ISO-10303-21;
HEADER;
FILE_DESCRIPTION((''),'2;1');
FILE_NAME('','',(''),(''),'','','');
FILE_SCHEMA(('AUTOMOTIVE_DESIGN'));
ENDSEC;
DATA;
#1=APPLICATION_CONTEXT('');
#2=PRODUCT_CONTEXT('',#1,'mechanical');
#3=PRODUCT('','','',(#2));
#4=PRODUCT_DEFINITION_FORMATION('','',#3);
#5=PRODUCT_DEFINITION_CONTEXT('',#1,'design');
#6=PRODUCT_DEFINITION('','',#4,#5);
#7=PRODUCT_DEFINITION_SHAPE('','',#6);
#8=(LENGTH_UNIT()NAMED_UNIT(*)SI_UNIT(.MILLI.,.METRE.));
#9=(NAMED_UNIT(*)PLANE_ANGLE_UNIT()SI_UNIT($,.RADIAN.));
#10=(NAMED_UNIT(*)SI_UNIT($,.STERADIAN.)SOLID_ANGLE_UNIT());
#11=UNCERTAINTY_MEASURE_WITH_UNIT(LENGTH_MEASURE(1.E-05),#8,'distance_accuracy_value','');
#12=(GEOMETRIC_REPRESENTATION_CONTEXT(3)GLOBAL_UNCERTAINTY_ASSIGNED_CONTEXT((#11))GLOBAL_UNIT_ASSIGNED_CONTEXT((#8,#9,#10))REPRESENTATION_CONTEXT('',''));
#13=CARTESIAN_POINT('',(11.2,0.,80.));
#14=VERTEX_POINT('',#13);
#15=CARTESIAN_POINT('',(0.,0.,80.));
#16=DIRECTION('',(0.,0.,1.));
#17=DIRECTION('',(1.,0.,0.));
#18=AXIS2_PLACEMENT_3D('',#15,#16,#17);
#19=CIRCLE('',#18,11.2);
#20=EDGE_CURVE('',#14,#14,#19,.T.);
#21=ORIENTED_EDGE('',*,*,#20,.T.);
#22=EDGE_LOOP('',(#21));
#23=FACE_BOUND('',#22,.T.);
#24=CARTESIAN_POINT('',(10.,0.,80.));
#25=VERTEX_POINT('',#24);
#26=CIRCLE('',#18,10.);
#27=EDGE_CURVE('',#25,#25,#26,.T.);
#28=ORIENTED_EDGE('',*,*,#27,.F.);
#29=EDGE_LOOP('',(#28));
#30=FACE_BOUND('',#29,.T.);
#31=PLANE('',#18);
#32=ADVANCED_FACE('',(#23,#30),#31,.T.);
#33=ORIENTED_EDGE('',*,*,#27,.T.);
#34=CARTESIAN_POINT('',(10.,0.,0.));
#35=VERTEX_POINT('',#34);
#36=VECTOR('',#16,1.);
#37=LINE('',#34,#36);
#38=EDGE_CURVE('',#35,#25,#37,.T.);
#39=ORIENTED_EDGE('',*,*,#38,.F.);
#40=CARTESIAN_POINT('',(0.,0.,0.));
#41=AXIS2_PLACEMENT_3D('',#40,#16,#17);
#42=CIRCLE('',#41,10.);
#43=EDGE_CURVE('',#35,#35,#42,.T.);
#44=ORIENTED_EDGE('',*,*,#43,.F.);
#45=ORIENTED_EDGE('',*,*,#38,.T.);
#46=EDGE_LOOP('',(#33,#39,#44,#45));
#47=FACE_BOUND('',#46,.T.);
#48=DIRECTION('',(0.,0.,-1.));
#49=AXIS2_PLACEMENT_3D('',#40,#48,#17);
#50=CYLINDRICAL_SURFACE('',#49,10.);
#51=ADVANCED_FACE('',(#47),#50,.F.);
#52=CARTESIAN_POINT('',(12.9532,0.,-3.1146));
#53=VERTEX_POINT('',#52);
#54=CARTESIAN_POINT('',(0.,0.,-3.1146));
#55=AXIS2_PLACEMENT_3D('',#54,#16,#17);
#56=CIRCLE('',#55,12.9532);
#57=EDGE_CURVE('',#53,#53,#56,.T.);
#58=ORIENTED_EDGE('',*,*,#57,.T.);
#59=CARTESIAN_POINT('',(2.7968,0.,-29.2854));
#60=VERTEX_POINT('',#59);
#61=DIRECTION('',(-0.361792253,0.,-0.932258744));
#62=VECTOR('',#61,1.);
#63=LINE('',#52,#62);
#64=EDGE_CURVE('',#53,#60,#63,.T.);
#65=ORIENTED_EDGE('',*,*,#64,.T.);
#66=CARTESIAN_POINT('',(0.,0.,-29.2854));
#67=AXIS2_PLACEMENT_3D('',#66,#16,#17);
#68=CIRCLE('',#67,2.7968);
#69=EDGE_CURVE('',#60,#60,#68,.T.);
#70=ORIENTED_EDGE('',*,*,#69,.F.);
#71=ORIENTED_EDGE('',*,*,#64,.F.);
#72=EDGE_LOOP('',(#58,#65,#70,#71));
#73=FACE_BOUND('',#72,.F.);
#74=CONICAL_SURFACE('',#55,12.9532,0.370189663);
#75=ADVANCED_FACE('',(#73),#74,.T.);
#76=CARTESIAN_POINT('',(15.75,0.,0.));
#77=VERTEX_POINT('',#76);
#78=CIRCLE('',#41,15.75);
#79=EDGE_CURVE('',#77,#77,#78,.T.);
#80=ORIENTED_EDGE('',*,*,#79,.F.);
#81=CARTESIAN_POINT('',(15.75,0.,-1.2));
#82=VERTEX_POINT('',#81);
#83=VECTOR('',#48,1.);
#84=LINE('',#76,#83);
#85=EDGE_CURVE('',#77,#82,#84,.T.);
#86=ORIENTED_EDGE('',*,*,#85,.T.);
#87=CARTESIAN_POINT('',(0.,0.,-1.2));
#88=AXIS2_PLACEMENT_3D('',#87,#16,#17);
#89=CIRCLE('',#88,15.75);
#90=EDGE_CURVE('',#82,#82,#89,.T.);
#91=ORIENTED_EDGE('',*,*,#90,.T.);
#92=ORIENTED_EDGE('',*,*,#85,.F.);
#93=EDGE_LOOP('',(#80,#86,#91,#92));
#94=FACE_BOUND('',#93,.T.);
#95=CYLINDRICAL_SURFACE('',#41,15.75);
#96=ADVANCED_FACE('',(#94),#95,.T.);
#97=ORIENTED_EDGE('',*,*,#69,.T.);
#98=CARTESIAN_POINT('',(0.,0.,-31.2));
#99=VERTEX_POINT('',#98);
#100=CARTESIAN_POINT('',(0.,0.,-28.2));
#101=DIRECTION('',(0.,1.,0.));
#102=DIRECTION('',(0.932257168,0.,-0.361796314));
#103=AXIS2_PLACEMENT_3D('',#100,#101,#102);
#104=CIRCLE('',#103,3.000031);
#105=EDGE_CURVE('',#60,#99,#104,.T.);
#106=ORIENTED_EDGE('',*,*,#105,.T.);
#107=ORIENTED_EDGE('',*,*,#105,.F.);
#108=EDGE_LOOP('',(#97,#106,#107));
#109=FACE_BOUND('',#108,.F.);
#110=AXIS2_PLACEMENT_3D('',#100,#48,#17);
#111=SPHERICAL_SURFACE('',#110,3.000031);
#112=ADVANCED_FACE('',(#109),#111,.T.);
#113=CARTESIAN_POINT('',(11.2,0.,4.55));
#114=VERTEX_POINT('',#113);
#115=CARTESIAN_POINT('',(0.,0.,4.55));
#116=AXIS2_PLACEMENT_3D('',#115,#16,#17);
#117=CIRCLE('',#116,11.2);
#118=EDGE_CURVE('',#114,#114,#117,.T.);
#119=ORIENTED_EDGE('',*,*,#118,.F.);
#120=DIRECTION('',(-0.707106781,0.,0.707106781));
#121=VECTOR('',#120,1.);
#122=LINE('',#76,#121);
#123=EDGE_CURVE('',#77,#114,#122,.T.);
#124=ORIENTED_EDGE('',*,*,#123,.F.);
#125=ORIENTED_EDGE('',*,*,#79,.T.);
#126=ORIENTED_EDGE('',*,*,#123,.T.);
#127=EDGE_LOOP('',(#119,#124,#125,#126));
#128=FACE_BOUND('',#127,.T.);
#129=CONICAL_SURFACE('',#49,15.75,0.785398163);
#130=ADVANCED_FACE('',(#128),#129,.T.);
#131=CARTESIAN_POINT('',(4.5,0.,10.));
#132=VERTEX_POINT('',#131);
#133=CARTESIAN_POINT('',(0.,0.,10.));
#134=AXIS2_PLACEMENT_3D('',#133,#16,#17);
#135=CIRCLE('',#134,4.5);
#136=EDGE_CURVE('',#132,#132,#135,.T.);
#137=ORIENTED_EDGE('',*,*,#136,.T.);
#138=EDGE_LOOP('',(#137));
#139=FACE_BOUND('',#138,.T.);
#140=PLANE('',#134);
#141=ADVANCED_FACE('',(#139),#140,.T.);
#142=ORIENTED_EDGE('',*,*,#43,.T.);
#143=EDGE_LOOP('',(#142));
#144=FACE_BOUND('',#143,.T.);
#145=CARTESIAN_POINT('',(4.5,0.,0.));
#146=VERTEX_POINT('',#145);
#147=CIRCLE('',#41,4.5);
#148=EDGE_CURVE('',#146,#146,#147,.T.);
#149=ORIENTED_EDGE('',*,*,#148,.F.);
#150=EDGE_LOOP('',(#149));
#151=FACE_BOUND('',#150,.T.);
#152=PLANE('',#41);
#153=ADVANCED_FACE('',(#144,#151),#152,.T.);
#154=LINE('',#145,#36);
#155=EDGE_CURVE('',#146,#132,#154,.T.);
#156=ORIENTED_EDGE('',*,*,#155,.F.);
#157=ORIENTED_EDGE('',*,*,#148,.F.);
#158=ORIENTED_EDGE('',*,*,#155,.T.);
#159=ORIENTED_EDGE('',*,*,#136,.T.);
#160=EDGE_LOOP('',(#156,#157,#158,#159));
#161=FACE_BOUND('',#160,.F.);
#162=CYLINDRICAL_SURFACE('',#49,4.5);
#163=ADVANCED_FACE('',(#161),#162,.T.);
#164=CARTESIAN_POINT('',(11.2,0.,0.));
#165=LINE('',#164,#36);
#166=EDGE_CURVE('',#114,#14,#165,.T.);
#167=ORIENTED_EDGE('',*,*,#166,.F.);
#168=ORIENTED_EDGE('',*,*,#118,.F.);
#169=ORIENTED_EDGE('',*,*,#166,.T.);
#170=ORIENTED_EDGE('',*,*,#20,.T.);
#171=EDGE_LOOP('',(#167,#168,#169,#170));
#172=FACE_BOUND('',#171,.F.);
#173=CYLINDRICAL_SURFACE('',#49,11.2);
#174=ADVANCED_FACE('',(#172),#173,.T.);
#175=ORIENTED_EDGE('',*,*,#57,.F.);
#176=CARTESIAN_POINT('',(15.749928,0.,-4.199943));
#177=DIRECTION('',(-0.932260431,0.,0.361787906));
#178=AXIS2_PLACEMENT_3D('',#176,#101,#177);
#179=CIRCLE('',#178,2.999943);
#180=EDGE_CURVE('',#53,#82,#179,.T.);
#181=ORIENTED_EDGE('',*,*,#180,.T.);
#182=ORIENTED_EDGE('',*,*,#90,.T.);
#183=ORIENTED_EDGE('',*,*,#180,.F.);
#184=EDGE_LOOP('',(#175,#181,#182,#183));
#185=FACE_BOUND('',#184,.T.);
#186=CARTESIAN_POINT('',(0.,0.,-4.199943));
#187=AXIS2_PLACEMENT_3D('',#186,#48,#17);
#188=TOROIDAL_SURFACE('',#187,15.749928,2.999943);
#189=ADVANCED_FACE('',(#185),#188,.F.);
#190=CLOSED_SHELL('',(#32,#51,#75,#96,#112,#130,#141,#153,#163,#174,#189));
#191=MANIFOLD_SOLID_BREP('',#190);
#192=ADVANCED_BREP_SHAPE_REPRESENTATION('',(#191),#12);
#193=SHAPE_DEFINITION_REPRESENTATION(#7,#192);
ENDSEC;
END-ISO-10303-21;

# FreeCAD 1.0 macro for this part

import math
import FreeCAD as App
import Part
import Sketcher
Q = App.Units.Quantity


def add_polygon(sketch, points):
    """Adds a closed chain of lines whose ends are joined by coincident constraints."""
    first, n = sketch.GeometryCount, len(points)
    for a, b in zip(points, points[1:] + points[:1]):
        sketch.addGeometry(Part.LineSegment(App.Vector(*a, 0), App.Vector(*b, 0)), False)
    for i in range(n):
        sketch.addConstraint(Sketcher.Constraint("Coincident", first + i, 2, first + (i + 1) % n, 1))

doc = App.newDocument("Part")
params = doc.addObject("Spreadsheet::Sheet", "Params")
for row, (alias, value) in enumerate([
    ("sketch1_diameter", "31.5 mm"),
    ("pad1_length", "31.2 mm"),
    ("sketch2_diameter", "20 mm"),
    ("sketch2_diameter2", "22.4 mm"),
    ("pad2_length", "80 mm"),
    ("sketch3_radius", "3 mm"),
    ("sketch3_height", "30 mm"),
    ("sketch3_width", "15.75 mm"),
    ("groove_angle", "360 deg"),
    ("sketch4_radius", "3 mm"),
    ("sketch4_height", "30 mm"),
    ("sketch4_width", "4.55 mm"),
    ("sketch4_width2", "15.75 mm"),
    ("revolution_angle", "360 deg"),
    ("sketch5_diameter", "9 mm"),
    ("pad3_length", "10 mm"),
], start=1):
    params.set(f"A{row}", alias)
    params.set(f"B{row}", "=" + value)
    params.setAlias(f"B{row}", alias)

body = doc.addObject("PartDesign::Body", "Body")

sketch1 = body.newObject("Sketcher::SketchObject", "Sketch")
sketch1.AttachmentSupport = (doc.getObject("XY_Plane"), [""])
sketch1.MapMode = "FlatFace"
sketch1.addGeometry(Part.Circle(App.Vector(0, 0, 0), App.Vector(0, 0, 1), 16), False)
sketch1.addConstraint([
    Sketcher.Constraint("Coincident", 0, 3, -1, 1),
    Sketcher.Constraint("Diameter", 0, Q("31.5 mm")),
])
sketch1.setExpression("Constraints[1]", "Params.sketch1_diameter")
pad1 = body.newObject("PartDesign::Pad", "Pad")
pad1.Profile = sketch1
pad1.setExpression("Length", "Params.pad1_length")
pad1.Reversed = True

sketch2 = body.newObject("Sketcher::SketchObject", "Sketch001")
sketch2.AttachmentSupport = (doc.getObject("XY_Plane"), [""])
sketch2.MapMode = "FlatFace"
sketch2.addGeometry([
    Part.Circle(App.Vector(0, 0, 0), App.Vector(0, 0, 1), 11),
    Part.Circle(App.Vector(0, 0, 0), App.Vector(0, 0, 1), 10),
], False)
sketch2.addConstraint([
    Sketcher.Constraint("Coincident", 0, 3, -1, 1),
    Sketcher.Constraint("Coincident", 1, 3, -1, 1),
    Sketcher.Constraint("Diameter", 1, Q("20 mm")),
    Sketcher.Constraint("Diameter", 0, Q("22.4 mm")),
])
sketch2.setExpression("Constraints[2]", "Params.sketch2_diameter")
sketch2.setExpression("Constraints[3]", "Params.sketch2_diameter2")
pad2 = body.newObject("PartDesign::Pad", "Pad001")
pad2.Profile = sketch2
pad2.setExpression("Length", "Params.pad2_length")

sketch3 = body.newObject("Sketcher::SketchObject", "Sketch002")
sketch3.AttachmentSupport = (doc.getObject("XZ_Plane"), [""])
sketch3.MapMode = "FlatFace"
sketch3.addGeometry([
    Part.LineSegment(App.Vector(15.8, -1.2, 0), App.Vector(15.8, -31.2, 0)),
    Part.LineSegment(App.Vector(15.8, -31.2, 0), App.Vector(0, -31.2, 0)),
    Part.ArcOfCircle(Part.Circle(App.Vector(0, -28.2, 0), App.Vector(0, 0, 1), 3), math.radians(-90), math.radians(-21)),
    Part.LineSegment(App.Vector(2.8, -29.3, 0), App.Vector(13, -3.1, 0)),
    Part.ArcOfCircle(Part.Circle(App.Vector(15.8, -4.2, 0), App.Vector(0, 0, 1), 3), math.radians(90), math.radians(159)),
], False)
sketch3.addConstraint([
    Sketcher.Constraint("Coincident", 0, 2, 1, 1),
    Sketcher.Constraint("Tangent", 1, 2, 2, 1),
    Sketcher.Constraint("Tangent", 2, 2, 3, 1),
    Sketcher.Constraint("Tangent", 3, 2, 4, 2),
    Sketcher.Constraint("Coincident", 4, 1, 0, 1),
    Sketcher.Constraint("Vertical", 0),
    Sketcher.Constraint("Horizontal", 1),
    Sketcher.Constraint("Equal", 2, 4),
    Sketcher.Constraint("PointOnObject", 2, 3, -2),
    Sketcher.Constraint("Vertical", 4, 3, 0, 2),
    Sketcher.Constraint("Radius", 2, Q("3 mm")),
    Sketcher.Constraint("DistanceY", 4, 1, -1, 1, Q("1.2 mm")),
    Sketcher.Constraint("DistanceY", 0, 2, 0, 1, Q("30 mm")),
    Sketcher.Constraint("DistanceX", 1, 2, 1, 1, Q("15.75 mm")),
])
sketch3.setExpression("Constraints[10]", "Params.sketch3_radius")
sketch3.setExpression("Constraints[12]", "Params.sketch3_height")
sketch3.setExpression("Constraints[13]", "Params.sketch3_width")
groove = body.newObject("PartDesign::Groove", "Groove")
groove.Profile = sketch3
groove.ReferenceAxis = (sketch3, ["V_Axis"])
groove.setExpression("Angle", "Params.groove_angle")

sketch4 = body.newObject("Sketcher::SketchObject", "Sketch003")
sketch4.AttachmentSupport = (doc.getObject("XZ_Plane"), [""])
sketch4.MapMode = "FlatFace"
add_polygon(sketch4, [(15.8, 0), (11.2, 0), (11.2, 4.5)])
sketch4.addGeometry(Part.ArcOfCircle(Part.Circle(App.Vector(0, -28.2, 0), App.Vector(0, 0, 1), 3), math.radians(-90), math.radians(-21)), False)
sketch4.addGeometry(Part.LineSegment(App.Vector(0, -31.2, 0), App.Vector(0, -1.2, 0)), False)
sketch4.addGeometry(Part.LineSegment(App.Vector(0, -1.2, 0), App.Vector(15.8, -1.2, 0)), False)
sketch4.addGeometry(Part.ArcOfCircle(Part.Circle(App.Vector(15.8, -4.2, 0), App.Vector(0, 0, 1), 3), math.radians(90), math.radians(159)), False)
sketch4.addGeometry(Part.LineSegment(App.Vector(13, -3.1, 0), App.Vector(2.8, -29.3, 0)), False)
sketch4.addConstraint([
    Sketcher.Constraint("Coincident", 3, 1, 4, 1),
    Sketcher.Constraint("Coincident", 4, 2, 5, 1),
    Sketcher.Constraint("Tangent", 5, 2, 6, 1),
    Sketcher.Constraint("Tangent", 6, 2, 7, 1),
    Sketcher.Constraint("Tangent", 7, 2, 3, 2),
    Sketcher.Constraint("Horizontal", 0),
    Sketcher.Constraint("Vertical", 1),
    Sketcher.Constraint("Vertical", 4),
    Sketcher.Constraint("Horizontal", 5),
    Sketcher.Constraint("Equal", 3, 6),
    Sketcher.Constraint("PointOnObject", 3, 3, -2),
    Sketcher.Constraint("PointOnObject", 0, 2, -1),
    Sketcher.Constraint("PointOnObject", 3, 1, -2),
    Sketcher.Constraint("Vertical", 6, 3, 2, 2),
    Sketcher.Constraint("Equal", 0, 1),
    Sketcher.Constraint("Radius", 3, Q("3 mm")),
    Sketcher.Constraint("DistanceY", 4, 2, -1, 1, Q("1.2 mm")),
    Sketcher.Constraint("DistanceY", 4, 1, 4, 2, Q("30 mm")),
    Sketcher.Constraint("DistanceX", 0, 2, 0, 1, Q("4.55 mm")),
    Sketcher.Constraint("DistanceX", 5, 1, 5, 2, Q("15.75 mm")),
])
sketch4.setExpression("Constraints[18]", "Params.sketch4_radius")
sketch4.setExpression("Constraints[20]", "Params.sketch4_height")
sketch4.setExpression("Constraints[21]", "Params.sketch4_width")
sketch4.setExpression("Constraints[22]", "Params.sketch4_width2")
revolution = body.newObject("PartDesign::Revolution", "Revolution")
revolution.Profile = sketch4
revolution.ReferenceAxis = (sketch4, ["V_Axis"])
revolution.setExpression("Angle", "Params.revolution_angle")

sketch5 = body.newObject("Sketcher::SketchObject", "Sketch004")
sketch5.AttachmentSupport = (doc.getObject("XY_Plane"), [""])
sketch5.MapMode = "FlatFace"
sketch5.addGeometry(Part.Circle(App.Vector(0, 0, 0), App.Vector(0, 0, 1), 4.5), False)
sketch5.addConstraint([
    Sketcher.Constraint("Coincident", 0, 3, -1, 1),
    Sketcher.Constraint("Diameter", 0, Q("9 mm")),
])
sketch5.setExpression("Constraints[1]", "Params.sketch5_diameter")
pad3 = body.newObject("PartDesign::Pad", "Pad002")
pad3.Profile = sketch5
pad3.setExpression("Length", "Params.pad3_length")

doc.recompute()
